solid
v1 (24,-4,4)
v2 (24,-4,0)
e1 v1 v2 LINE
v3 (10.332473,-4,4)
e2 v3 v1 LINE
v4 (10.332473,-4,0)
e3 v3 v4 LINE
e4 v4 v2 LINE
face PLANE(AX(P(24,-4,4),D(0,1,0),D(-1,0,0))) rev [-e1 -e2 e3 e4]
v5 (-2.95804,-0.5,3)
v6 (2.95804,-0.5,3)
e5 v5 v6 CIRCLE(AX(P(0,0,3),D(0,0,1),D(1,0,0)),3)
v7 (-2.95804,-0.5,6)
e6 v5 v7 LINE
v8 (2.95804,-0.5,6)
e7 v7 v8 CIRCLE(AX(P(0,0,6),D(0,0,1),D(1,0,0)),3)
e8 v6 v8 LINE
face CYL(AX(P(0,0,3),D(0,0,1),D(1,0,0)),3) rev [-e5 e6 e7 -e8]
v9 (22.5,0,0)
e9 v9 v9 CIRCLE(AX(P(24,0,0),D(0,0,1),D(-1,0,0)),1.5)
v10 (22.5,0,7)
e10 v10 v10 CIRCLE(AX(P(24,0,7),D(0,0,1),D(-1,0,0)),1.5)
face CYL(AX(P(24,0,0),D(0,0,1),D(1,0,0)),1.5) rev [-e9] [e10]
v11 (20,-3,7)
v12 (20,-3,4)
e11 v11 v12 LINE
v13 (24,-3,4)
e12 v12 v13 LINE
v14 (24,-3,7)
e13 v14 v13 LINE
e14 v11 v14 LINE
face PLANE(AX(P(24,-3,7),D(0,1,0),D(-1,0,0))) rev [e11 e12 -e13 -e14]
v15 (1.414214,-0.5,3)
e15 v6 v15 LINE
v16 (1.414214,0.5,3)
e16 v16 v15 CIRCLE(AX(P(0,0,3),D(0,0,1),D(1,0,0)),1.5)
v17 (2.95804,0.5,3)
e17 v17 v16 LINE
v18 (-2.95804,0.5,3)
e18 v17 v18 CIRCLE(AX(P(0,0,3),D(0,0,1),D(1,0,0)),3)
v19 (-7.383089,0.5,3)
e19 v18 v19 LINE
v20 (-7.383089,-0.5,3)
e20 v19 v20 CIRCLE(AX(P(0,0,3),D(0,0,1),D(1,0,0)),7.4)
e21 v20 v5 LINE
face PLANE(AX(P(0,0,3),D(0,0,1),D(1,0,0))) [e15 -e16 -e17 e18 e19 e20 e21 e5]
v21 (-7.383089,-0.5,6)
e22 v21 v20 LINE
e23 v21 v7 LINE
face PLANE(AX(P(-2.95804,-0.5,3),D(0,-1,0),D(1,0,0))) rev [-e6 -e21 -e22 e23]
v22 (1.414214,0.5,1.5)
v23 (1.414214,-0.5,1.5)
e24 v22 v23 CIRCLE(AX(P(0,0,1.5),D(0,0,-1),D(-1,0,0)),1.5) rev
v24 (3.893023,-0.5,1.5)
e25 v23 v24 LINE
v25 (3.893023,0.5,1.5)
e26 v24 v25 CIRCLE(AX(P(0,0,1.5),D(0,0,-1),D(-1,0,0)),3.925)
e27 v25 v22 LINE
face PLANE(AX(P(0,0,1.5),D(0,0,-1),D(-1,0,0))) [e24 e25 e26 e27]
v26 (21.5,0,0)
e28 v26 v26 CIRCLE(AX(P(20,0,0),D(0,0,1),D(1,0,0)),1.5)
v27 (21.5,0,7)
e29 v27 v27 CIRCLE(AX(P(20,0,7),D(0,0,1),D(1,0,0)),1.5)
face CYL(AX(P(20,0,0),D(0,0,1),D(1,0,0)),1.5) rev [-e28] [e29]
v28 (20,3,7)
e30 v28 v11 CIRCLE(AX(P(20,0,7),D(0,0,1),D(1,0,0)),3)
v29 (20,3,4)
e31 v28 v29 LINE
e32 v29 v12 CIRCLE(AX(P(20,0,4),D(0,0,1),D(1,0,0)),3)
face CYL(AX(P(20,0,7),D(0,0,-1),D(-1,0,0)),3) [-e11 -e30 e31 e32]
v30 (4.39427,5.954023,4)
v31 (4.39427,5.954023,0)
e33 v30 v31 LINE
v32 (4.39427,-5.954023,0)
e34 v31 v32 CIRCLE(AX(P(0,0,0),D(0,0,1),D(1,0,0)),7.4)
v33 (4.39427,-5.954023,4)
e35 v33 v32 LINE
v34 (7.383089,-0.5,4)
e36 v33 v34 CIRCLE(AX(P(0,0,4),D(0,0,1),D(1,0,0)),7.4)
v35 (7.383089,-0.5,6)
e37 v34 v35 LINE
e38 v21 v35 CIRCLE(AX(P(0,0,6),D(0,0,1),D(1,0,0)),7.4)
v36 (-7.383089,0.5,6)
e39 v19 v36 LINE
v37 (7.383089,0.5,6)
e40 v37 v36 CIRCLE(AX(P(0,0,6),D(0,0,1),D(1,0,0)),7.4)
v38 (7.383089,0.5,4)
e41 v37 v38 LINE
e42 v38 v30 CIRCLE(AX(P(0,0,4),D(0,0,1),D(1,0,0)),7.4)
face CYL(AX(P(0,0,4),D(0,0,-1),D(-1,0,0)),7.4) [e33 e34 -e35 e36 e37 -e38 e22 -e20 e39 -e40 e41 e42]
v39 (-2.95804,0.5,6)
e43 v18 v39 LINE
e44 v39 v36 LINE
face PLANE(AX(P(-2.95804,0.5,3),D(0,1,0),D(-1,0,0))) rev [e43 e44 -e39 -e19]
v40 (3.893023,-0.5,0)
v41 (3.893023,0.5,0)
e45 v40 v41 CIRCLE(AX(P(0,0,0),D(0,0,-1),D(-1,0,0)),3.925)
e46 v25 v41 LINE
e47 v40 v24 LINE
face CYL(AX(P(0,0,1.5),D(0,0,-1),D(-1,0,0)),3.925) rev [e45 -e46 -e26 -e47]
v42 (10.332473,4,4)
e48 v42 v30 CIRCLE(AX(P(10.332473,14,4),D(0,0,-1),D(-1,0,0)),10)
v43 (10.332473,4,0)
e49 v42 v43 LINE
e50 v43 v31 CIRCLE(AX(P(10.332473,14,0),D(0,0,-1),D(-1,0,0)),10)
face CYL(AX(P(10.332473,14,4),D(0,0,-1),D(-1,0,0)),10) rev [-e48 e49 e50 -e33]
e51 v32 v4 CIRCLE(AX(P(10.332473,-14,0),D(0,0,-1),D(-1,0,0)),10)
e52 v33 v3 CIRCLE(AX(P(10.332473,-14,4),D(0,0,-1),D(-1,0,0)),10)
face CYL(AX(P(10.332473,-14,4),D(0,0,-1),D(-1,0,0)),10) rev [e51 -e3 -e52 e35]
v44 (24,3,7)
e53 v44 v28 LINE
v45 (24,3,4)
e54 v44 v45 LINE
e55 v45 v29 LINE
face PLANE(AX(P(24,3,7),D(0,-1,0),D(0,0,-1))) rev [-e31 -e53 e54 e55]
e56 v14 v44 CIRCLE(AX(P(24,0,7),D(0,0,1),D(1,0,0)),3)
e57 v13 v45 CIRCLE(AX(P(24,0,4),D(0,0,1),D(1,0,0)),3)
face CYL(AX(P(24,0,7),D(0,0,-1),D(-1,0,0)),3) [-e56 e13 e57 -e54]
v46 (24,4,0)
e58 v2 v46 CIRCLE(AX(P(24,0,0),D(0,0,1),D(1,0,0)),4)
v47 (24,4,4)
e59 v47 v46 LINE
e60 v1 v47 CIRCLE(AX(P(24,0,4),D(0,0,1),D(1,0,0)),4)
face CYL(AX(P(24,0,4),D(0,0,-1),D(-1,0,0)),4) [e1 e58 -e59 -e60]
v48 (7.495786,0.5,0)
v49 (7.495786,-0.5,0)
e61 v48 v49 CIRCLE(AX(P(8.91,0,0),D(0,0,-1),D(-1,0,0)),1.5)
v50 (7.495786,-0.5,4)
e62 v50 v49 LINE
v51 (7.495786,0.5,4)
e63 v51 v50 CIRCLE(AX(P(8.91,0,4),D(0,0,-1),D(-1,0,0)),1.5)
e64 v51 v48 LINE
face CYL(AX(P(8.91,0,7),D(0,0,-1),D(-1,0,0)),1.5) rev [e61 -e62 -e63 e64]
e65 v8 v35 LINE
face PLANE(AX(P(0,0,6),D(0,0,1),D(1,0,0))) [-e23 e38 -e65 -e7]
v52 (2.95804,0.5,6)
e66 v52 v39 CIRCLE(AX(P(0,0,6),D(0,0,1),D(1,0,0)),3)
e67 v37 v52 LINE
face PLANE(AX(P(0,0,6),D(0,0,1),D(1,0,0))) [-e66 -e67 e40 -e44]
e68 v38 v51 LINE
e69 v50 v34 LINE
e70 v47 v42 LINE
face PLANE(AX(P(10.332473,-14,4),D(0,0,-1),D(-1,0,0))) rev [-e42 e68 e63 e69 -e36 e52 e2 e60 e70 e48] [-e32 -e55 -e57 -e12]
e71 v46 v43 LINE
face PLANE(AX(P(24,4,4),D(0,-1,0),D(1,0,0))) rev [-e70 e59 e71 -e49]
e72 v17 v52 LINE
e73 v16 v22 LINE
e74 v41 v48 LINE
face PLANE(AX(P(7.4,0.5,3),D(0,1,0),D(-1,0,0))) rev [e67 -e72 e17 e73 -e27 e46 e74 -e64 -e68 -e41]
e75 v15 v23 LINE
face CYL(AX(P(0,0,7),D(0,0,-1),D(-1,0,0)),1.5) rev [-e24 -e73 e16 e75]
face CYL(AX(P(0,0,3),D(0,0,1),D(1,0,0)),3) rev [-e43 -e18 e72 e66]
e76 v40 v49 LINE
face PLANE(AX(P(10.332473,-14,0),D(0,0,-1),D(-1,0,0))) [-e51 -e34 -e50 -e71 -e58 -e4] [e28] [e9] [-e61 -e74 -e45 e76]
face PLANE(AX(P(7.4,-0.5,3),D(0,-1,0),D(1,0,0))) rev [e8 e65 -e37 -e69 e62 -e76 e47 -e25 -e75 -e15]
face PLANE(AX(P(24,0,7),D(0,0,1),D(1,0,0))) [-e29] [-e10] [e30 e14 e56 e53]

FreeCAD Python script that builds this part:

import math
import FreeCAD as App
import Part
import Sketcher
from FreeCAD import Vector

doc = App.newDocument("Part")
params = doc.addObject("Spreadsheet::Sheet", "Params")
for row, (alias, value) in enumerate([
    ("sketch1_radius", "10 mm"),
    ("sketch1_radius2", "4 mm"),
    ("sketch1_radius3", "7.4 mm"),
    ("pad1_length", "4 mm"),
    ("sketch2_diameter", "14.8 mm"),
    ("pad2_length", "2 mm"),
    ("sketch3_radius", "3 mm"),
    ("sketch3_width", "4 mm"),
    ("pad3_length", "3 mm"),
    ("sketch4_radius", "3 mm"),
    ("sketch4_height", "1 mm"),
    ("pocket1_length", "3 mm"),
    ("sketch5_diameter", "3 mm"),
    ("sketch6_radius", "1.5 mm"),
    ("sketch7_diameter", "7.85 mm"),
    ("pocket4_length", "1.5 mm"),
], start=1):
    params.set(f"A{row}", alias)
    params.set(f"B{row}", "=" + value)
    params.setAlias(f"B{row}", alias)

body = doc.addObject("PartDesign::Body", "Body")

# Sketch on XY plane
sketch1 = body.newObject("Sketcher::SketchObject", "Sketch")
sketch1.AttachmentSupport = (doc.getObject("XY_Plane"), [""])
sketch1.MapMode = "FlatFace"
sketch1.addGeometry([
    Part.LineSegment(Vector(24, 4, 0), Vector(10.3, 4, 0)),  # 0
    Part.ArcOfCircle(Part.Circle(Vector(10.3, 14, 0), Vector(0, 0, 1), 10), math.radians(-126), math.radians(-90)),  # 1
    Part.ArcOfCircle(Part.Circle(Vector(0, 0, 0), Vector(0, 0, 1), 7.4), math.radians(54), math.radians(306)),  # 2
    Part.ArcOfCircle(Part.Circle(Vector(10.3, -14, 0), Vector(0, 0, 1), 10), math.radians(90), math.radians(126)),  # 3
    Part.LineSegment(Vector(10.3, -4, 0), Vector(24, -4, 0)),  # 4
    Part.ArcOfCircle(Part.Circle(Vector(24, 0, 0), Vector(0, 0, 1), 4), math.radians(-90), math.radians(90)),  # 5
], False)
sketch1.addConstraint([
    Sketcher.Constraint("Tangent", 0, 2, 1, 2),
    Sketcher.Constraint("Tangent", 1, 1, 2, 1),
    Sketcher.Constraint("Tangent", 2, 2, 3, 2),
    Sketcher.Constraint("Tangent", 3, 1, 4, 1),
    Sketcher.Constraint("Tangent", 4, 2, 5, 1),
    Sketcher.Constraint("Tangent", 5, 2, 0, 1),
    Sketcher.Constraint("Horizontal", 0),
    Sketcher.Constraint("Horizontal", 4),
    Sketcher.Constraint("Coincident", 2, 3, -1, 1),
    Sketcher.Constraint("Equal", 1, 3),
    Sketcher.Constraint("PointOnObject", 5, 3, -1),
    Sketcher.Constraint("Radius", 1, 10.0),
    Sketcher.Constraint("Radius", 5, 4.0),
    Sketcher.Constraint("Radius", 2, 7.4),
    Sketcher.Constraint("DistanceX", -1, 1, 5, 3, 24.0),
])
sketch1.setExpression("Constraints[11]", "Params.sketch1_radius")
sketch1.setExpression("Constraints[12]", "Params.sketch1_radius2")
sketch1.setExpression("Constraints[13]", "Params.sketch1_radius3")
pad1 = body.newObject("PartDesign::Pad", "Pad")
pad1.Profile = sketch1
pad1.setExpression("Length", "Params.pad1_length")

# Sketch on XY plane
sketch2 = body.newObject("Sketcher::SketchObject", "Sketch001")
sketch2.AttachmentSupport = (doc.getObject("XY_Plane"), [""])
sketch2.MapMode = "FlatFace"
sketch2.AttachmentOffset = App.Placement(Vector(0, 0, 4), App.Rotation())
sketch2.addGeometry(Part.Circle(Vector(0, 0, 0), Vector(0, 0, 1), 7), False)
sketch2.addConstraint([
    Sketcher.Constraint("Coincident", 0, 3, -1, 1),
    Sketcher.Constraint("Diameter", 0, 14.8),
])
sketch2.setExpression("Constraints[1]", "Params.sketch2_diameter")
pad2 = body.newObject("PartDesign::Pad", "Pad001")
pad2.Profile = sketch2
pad2.setExpression("Length", "Params.pad2_length")

# Sketch on XY plane
sketch3 = body.newObject("Sketcher::SketchObject", "Sketch002")
sketch3.AttachmentSupport = (doc.getObject("XY_Plane"), [""])
sketch3.MapMode = "FlatFace"
sketch3.AttachmentOffset = App.Placement(Vector(0, 0, 4), App.Rotation())
sketch3.addGeometry([
    Part.LineSegment(Vector(20, -3, 0), Vector(24, -3, 0)),
    Part.ArcOfCircle(Part.Circle(Vector(24, 0, 0), Vector(0, 0, 1), 3), math.radians(-90), math.radians(90)),
    Part.LineSegment(Vector(24, 3, 0), Vector(20, 3, 0)),
    Part.ArcOfCircle(Part.Circle(Vector(20, 0, 0), Vector(0, 0, 1), 3), math.radians(90), math.radians(270)),
], False)
sketch3.addConstraint([
    Sketcher.Constraint("Tangent", 0, 2, 1, 1),
    Sketcher.Constraint("Tangent", 1, 2, 2, 1),
    Sketcher.Constraint("Tangent", 2, 2, 3, 1),
    Sketcher.Constraint("Tangent", 3, 2, 0, 1),
    Sketcher.Constraint("Horizontal", 0),
    Sketcher.Constraint("Horizontal", 2),
    Sketcher.Constraint("PointOnObject", 1, 3, -1),
    Sketcher.Constraint("Radius", 1, 3.0),
    Sketcher.Constraint("DistanceX", 0, 1, 0, 2, 4.0),
    Sketcher.Constraint("DistanceX", -1, 1, 1, 3, 24.0),
])
sketch3.setExpression("Constraints[7]", "Params.sketch3_radius")
sketch3.setExpression("Constraints[8]", "Params.sketch3_width")
pad3 = body.newObject("PartDesign::Pad", "Pad002")
pad3.Profile = sketch3
pad3.setExpression("Length", "Params.pad3_length")

# Sketch on XY plane
sketch4 = body.newObject("Sketcher::SketchObject", "Sketch003")
sketch4.AttachmentSupport = (doc.getObject("XY_Plane"), [""])
sketch4.MapMode = "FlatFace"
sketch4.AttachmentOffset = App.Placement(Vector(0, 0, 6), App.Rotation())
sketch4.addGeometry([
    Part.LineSegment(Vector(7.4, 0.5, 0), Vector(3, 0.5, 0)),  # 0
    Part.ArcOfCircle(Part.Circle(Vector(0, 0, 0), Vector(0, 0, 1), 3), math.radians(10), math.radians(170)),  # 1
    Part.LineSegment(Vector(-3, 0.5, 0), Vector(-7.4, 0.5, 0)),  # 2
    Part.LineSegment(Vector(-7.4, 0.5, 0), Vector(-7.4, -0.5, 0)),  # 3
    Part.LineSegment(Vector(-7.4, -0.5, 0), Vector(-3, -0.5, 0)),  # 4
    Part.ArcOfCircle(Part.Circle(Vector(0, 0, 0), Vector(0, 0, 1), 3), math.radians(-170), math.radians(-10)),  # 5
    Part.LineSegment(Vector(3, -0.5, 0), Vector(7.4, -0.5, 0)),  # 6
    Part.LineSegment(Vector(7.4, -0.5, 0), Vector(7.4, 0.5, 0)),  # 7
], False)
sketch4.addConstraint([
    Sketcher.Constraint("Coincident", 0, 2, 1, 1),
    Sketcher.Constraint("Coincident", 1, 2, 2, 1),
    Sketcher.Constraint("Coincident", 2, 2, 3, 1),
    Sketcher.Constraint("Coincident", 3, 2, 4, 1),
    Sketcher.Constraint("Coincident", 4, 2, 5, 1),
    Sketcher.Constraint("Coincident", 5, 2, 6, 1),
    Sketcher.Constraint("Coincident", 6, 2, 7, 1),
    Sketcher.Constraint("Coincident", 7, 2, 0, 1),
    Sketcher.Constraint("Horizontal", 0),
    Sketcher.Constraint("Horizontal", 2),
    Sketcher.Constraint("Vertical", 3),
    Sketcher.Constraint("Horizontal", 4),
    Sketcher.Constraint("Horizontal", 6),
    Sketcher.Constraint("Vertical", 7),
    Sketcher.Constraint("Coincident", 1, 3, -1, 1),
    Sketcher.Constraint("Coincident", 5, 3, -1, 1),
    Sketcher.Constraint("Equal", 1, 5),
    Sketcher.Constraint("Symmetric", 2, 2, 6, 2, -1, 1),
    Sketcher.Constraint("Horizontal", 0, 2, 1, 2),
    Sketcher.Constraint("Horizontal", 4, 2, 5, 2),
    Sketcher.Constraint("Radius", 1, 3.0),
    Sketcher.Constraint("DistanceY", 3, 2, 3, 1, 1.0),
    Sketcher.Constraint("DistanceX", 2, 2, -1, 1, 7.4),
])
sketch4.setExpression("Constraints[20]", "Params.sketch4_radius")
sketch4.setExpression("Constraints[21]", "Params.sketch4_height")
pocket1 = body.newObject("PartDesign::Pocket", "Pocket")
pocket1.Profile = sketch4
pocket1.setExpression("Length", "Params.pocket1_length")

# Sketch on XY plane
sketch5 = body.newObject("Sketcher::SketchObject", "Sketch004")
sketch5.AttachmentSupport = (doc.getObject("XY_Plane"), [""])
sketch5.MapMode = "FlatFace"
sketch5.AttachmentOffset = App.Placement(Vector(0, 0, 7), App.Rotation())
sketch5.addGeometry([
    Part.Circle(Vector(20, 0, 0), Vector(0, 0, 1), 1.5),
    Part.Circle(Vector(24, 0, 0), Vector(0, 0, 1), 1.5),
], False)
sketch5.addConstraint([
    Sketcher.Constraint("Equal", 0, 1),
    Sketcher.Constraint("PointOnObject", 0, 3, -1),
    Sketcher.Constraint("PointOnObject", 1, 3, -1),
    Sketcher.Constraint("Diameter", 0, 3.0),
    Sketcher.Constraint("DistanceX", -1, 1, 0, 3, 20.0),
    Sketcher.Constraint("DistanceX", -1, 1, 1, 3, 24.0),
])
sketch5.setExpression("Constraints[3]", "Params.sketch5_diameter")
pocket2 = body.newObject("PartDesign::Pocket", "Pocket001")
pocket2.Profile = sketch5
pocket2.Type = "ThroughAll"

# Sketch on XY plane
sketch6 = body.newObject("Sketcher::SketchObject", "Sketch005")
sketch6.AttachmentSupport = (doc.getObject("XY_Plane"), [""])
sketch6.MapMode = "FlatFace"
sketch6.addGeometry([
    Part.ArcOfCircle(Part.Circle(Vector(0, 0, 0), Vector(0, 0, 1), 1.5), math.radians(19), math.radians(341)),
    Part.LineSegment(Vector(1.4, 0.5, 0), Vector(7.5, 0.5, 0)),
    Part.ArcOfCircle(Part.Circle(Vector(8.9, 0, 0), Vector(0, 0, 1), 1.5), math.radians(-161), math.radians(161)),
    Part.LineSegment(Vector(7.5, -0.5, 0), Vector(1.4, -0.5, 0)),
], False)
sketch6.addConstraint([
    Sketcher.Constraint("Coincident", 0, 1, 1, 1),
    Sketcher.Constraint("Coincident", 1, 2, 2, 2),
    Sketcher.Constraint("Coincident", 2, 1, 3, 1),
    Sketcher.Constraint("Coincident", 3, 2, 0, 2),
    Sketcher.Constraint("Horizontal", 1),
    Sketcher.Constraint("Horizontal", 3),
    Sketcher.Constraint("Coincident", 0, 3, -1, 1),
    Sketcher.Constraint("Equal", 0, 2),
    Sketcher.Constraint("Symmetric", 1, 2, 2, 1, -1),
    Sketcher.Constraint("Radius", 0, 1.5),
    Sketcher.Constraint("DistanceY", 2, 1, 1, 2, 1.0),
    Sketcher.Constraint("DistanceX", -1, 1, 2, 3, 8.91),
])
sketch6.setExpression("Constraints[9]", "Params.sketch6_radius")
pocket3 = body.newObject("PartDesign::Pocket", "Pocket002")
pocket3.Profile = sketch6
pocket3.Type = "ThroughAll"
pocket3.Reversed = True

# Sketch on XY plane
sketch7 = body.newObject("Sketcher::SketchObject", "Sketch006")
sketch7.AttachmentSupport = (doc.getObject("XY_Plane"), [""])
sketch7.MapMode = "FlatFace"
sketch7.addGeometry(Part.Circle(Vector(0, 0, 0), Vector(0, 0, 1), 3.9), False)
sketch7.addConstraint([
    Sketcher.Constraint("Coincident", 0, 3, -1, 1),
    Sketcher.Constraint("Diameter", 0, 7.85),
])
sketch7.setExpression("Constraints[1]", "Params.sketch7_diameter")
pocket4 = body.newObject("PartDesign::Pocket", "Pocket003")
pocket4.Profile = sketch7
pocket4.setExpression("Length", "Params.pocket4_length")
pocket4.Reversed = True

doc.recompute()
